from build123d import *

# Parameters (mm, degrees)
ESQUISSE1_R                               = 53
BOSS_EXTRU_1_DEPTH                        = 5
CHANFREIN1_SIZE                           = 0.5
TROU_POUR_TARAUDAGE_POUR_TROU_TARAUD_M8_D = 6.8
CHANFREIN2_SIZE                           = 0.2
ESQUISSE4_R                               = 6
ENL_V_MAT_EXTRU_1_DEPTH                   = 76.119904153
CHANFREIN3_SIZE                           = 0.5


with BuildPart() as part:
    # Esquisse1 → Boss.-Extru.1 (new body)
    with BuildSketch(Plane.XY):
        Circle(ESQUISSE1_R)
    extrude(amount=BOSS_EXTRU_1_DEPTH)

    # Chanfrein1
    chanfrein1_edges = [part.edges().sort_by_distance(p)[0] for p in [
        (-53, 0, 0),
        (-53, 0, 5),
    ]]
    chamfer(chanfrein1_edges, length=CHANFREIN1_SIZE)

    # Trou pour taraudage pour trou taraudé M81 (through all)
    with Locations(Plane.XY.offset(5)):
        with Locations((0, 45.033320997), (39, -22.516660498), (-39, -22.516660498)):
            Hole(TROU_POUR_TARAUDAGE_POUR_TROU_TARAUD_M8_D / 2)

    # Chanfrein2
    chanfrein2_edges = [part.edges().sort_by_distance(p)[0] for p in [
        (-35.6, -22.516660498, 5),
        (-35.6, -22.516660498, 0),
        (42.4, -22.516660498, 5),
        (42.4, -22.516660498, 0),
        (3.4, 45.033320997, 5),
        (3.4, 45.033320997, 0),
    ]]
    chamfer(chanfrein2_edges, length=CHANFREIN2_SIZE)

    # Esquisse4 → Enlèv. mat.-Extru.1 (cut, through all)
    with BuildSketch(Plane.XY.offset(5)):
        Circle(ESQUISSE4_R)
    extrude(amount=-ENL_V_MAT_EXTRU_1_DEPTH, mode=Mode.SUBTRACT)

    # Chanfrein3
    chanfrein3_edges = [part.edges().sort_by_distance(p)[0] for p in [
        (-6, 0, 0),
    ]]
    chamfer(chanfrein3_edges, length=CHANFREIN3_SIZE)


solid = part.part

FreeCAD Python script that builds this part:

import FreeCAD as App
import Part
import Sketcher
from FreeCAD import Vector


def edges_at(feature, points):
    """Names of the edges that pass closest to the given points."""
    edges = feature.Shape.Edges
    near = lambda p: min(range(len(edges)), key=lambda i: edges[i].distToShape(Part.Vertex(*p))[0])
    return sorted({f"Edge{near(p) + 1}" for p in points})

doc = App.newDocument("Part")
body = doc.addObject("PartDesign::Body", "Body")

# Sketch on XY plane
sketch1 = body.newObject("Sketcher::SketchObject", "Sketch")
sketch1.AttachmentSupport = (doc.getObject("XY_Plane"), [""])
sketch1.MapMode = "FlatFace"
sketch1.addGeometry(Part.Circle(Vector(0, 0, 0), Vector(0, 0, 1), 53), False)
sketch1.addConstraint(Sketcher.Constraint("Coincident", 0, 3, -1, 1))
sketch1.addConstraint(Sketcher.Constraint("Diameter", 0, 106.0))
pad1 = body.newObject("PartDesign::Pad", "Pad")
pad1.Profile = sketch1
pad1.Length = 5
doc.recompute()

chamfer = body.newObject("PartDesign::Chamfer", "Chamfer")
chamfer.Base = (pad1, edges_at(pad1, [(-53, 0, 0), (-53, 0, 5)]))
chamfer.Size = 0.5

# Sketch on XY plane
sketch2 = body.newObject("Sketcher::SketchObject", "Sketch001")
sketch2.AttachmentSupport = (doc.getObject("XY_Plane"), [""])
sketch2.MapMode = "FlatFace"
sketch2.AttachmentOffset = App.Placement(Vector(0, 0, 5), App.Rotation())
sketch2.addGeometry(Part.Circle(Vector(0, 45, 0), Vector(0, 0, 1), 3.4), False)
sketch2.addGeometry(Part.Circle(Vector(39, -22.5, 0), Vector(0, 0, 1), 3.4), False)
sketch2.addGeometry(Part.Circle(Vector(-39, -22.5, 0), Vector(0, 0, 1), 3.4), False)
sketch2.addConstraint(Sketcher.Constraint("Equal", 0, 1))
sketch2.addConstraint(Sketcher.Constraint("Equal", 1, 2))
sketch2.addConstraint(Sketcher.Constraint("Symmetric", 1, 3, 2, 3, -2))
sketch2.addConstraint(Sketcher.Constraint("PointOnObject", 0, 3, -2))
sketch2.addConstraint(Sketcher.Constraint("Diameter", 0, 6.8))
sketch2.addConstraint(Sketcher.Constraint("DistanceX", -1, 1, 1, 3, 39.0))
sketch2.addConstraint(Sketcher.Constraint("DistanceY", -1, 1, 0, 3, 45.033321))
sketch2.addConstraint(Sketcher.Constraint("DistanceY", 1, 3, -1, 1, 22.51666))
doc.recompute()
hole = body.newObject("PartDesign::Hole", "Hole")
hole.Profile = sketch2
hole.ThreadType = "None"
hole.Diameter = 6.8
hole.DepthType = "ThroughAll"
doc.recompute()

chamfer2 = body.newObject("PartDesign::Chamfer", "Chamfer001")
chamfer2.Base = (hole, edges_at(hole, [
    (-35.6, -22.517, 5),
    (-35.6, -22.517, 0),
    (42.4, -22.517, 5),
    (42.4, -22.517, 0),
    (3.4, 45.033, 5),
    (3.4, 45.033, 0),
]))
chamfer2.Size = 0.2

# Sketch on XY plane
sketch3 = body.newObject("Sketcher::SketchObject", "Sketch002")
sketch3.AttachmentSupport = (doc.getObject("XY_Plane"), [""])
sketch3.MapMode = "FlatFace"
sketch3.AttachmentOffset = App.Placement(Vector(0, 0, 5), App.Rotation())
sketch3.addGeometry(Part.Circle(Vector(0, 0, 0), Vector(0, 0, 1), 6), False)
sketch3.addConstraint(Sketcher.Constraint("Coincident", 0, 3, -1, 1))
sketch3.addConstraint(Sketcher.Constraint("Diameter", 0, 12.0))
pocket1 = body.newObject("PartDesign::Pocket", "Pocket")
pocket1.Profile = sketch3
pocket1.Type = "ThroughAll"
doc.recompute()

chamfer3 = body.newObject("PartDesign::Chamfer", "Chamfer002")
chamfer3.Base = (pocket1, edges_at(pocket1, [(-6, 0, 0)]))
chamfer3.Size = 0.5

doc.recompute()
